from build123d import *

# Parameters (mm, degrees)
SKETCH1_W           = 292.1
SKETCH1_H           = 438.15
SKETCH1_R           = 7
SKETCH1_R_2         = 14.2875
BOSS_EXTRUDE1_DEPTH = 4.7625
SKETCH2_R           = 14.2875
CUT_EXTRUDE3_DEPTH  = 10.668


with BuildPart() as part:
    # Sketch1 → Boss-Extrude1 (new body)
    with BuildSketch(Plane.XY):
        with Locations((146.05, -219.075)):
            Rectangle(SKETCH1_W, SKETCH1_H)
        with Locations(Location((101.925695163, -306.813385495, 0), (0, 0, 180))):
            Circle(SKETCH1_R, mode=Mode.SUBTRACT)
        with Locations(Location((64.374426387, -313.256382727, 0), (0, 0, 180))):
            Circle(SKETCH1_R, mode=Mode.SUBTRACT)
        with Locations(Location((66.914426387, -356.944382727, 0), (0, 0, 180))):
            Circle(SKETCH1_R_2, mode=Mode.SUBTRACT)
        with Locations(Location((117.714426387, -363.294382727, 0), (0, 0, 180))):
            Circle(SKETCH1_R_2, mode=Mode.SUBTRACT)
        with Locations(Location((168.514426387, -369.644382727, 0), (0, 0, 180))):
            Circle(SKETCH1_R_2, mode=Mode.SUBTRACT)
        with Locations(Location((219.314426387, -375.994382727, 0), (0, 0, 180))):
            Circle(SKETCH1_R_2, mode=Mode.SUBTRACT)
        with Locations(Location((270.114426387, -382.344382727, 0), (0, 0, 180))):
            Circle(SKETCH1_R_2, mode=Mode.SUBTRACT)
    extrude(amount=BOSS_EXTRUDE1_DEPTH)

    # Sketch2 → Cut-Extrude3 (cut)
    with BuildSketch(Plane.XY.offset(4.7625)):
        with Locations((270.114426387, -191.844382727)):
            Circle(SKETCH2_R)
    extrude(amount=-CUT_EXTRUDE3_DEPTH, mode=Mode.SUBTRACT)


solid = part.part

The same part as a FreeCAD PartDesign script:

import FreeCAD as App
import Part
import Sketcher
from FreeCAD import Vector
Q = App.Units.Quantity

doc = App.newDocument("Part")
body = doc.addObject("PartDesign::Body", "Body")

# Sketch on XY plane
sketch1 = body.newObject("Sketcher::SketchObject", "Sketch")
sketch1.AttachmentSupport = (doc.getObject("XY_Plane"), [""])
sketch1.MapMode = "FlatFace"
sketch1.addGeometry(Part.LineSegment(Vector(0, 0, 0), Vector(0, -438.15, 0)), False)
sketch1.addGeometry(Part.LineSegment(Vector(0, -438.15, 0), Vector(292.1, -438.15, 0)), False)
sketch1.addGeometry(Part.LineSegment(Vector(292.1, -438.15, 0), Vector(292.1, 0, 0)), False)
sketch1.addGeometry(Part.LineSegment(Vector(292.1, 0, 0), Vector(0, 0, 0)), False)
sketch1.addGeometry(Part.Circle(Vector(66.914426, -356.944383, 0), Vector(0, 0, 1), 14.2875), False)
sketch1.addGeometry(Part.Circle(Vector(117.714426, -363.294383, 0), Vector(0, 0, 1), 14.2875), False)
sketch1.addGeometry(Part.Circle(Vector(168.514426, -369.644383, 0), Vector(0, 0, 1), 14.2875), False)
sketch1.addGeometry(Part.Circle(Vector(219.314426, -375.994383, 0), Vector(0, 0, 1), 14.2875), False)
sketch1.addGeometry(Part.Circle(Vector(270.114426, -382.344383, 0), Vector(0, 0, 1), 14.2875), False)
sketch1.addGeometry(Part.Circle(Vector(64.374426, -313.256383, 0), Vector(0, 0, 1), 7), False)
sketch1.addGeometry(Part.Circle(Vector(101.925695, -306.813385, 0), Vector(0, 0, 1), 7), False)
sketch1.addConstraint(Sketcher.Constraint("Coincident", 0, 2, 1, 1))
sketch1.addConstraint(Sketcher.Constraint("Coincident", 1, 2, 2, 1))
sketch1.addConstraint(Sketcher.Constraint("Coincident", 2, 2, 3, 1))
sketch1.addConstraint(Sketcher.Constraint("Coincident", 3, 2, 0, 1))
sketch1.addConstraint(Sketcher.Constraint("Vertical", 0))
sketch1.addConstraint(Sketcher.Constraint("Horizontal", 1))
sketch1.addConstraint(Sketcher.Constraint("Vertical", 2))
sketch1.addConstraint(Sketcher.Constraint("Horizontal", 3))
sketch1.addConstraint(Sketcher.Constraint("Coincident", 3, 2, -1, 1))
sketch1.addConstraint(Sketcher.Constraint("Equal", 4, 5))
sketch1.addConstraint(Sketcher.Constraint("Equal", 5, 6))
sketch1.addConstraint(Sketcher.Constraint("Equal", 6, 7))
sketch1.addConstraint(Sketcher.Constraint("Equal", 7, 8))
sketch1.addConstraint(Sketcher.Constraint("Equal", 9, 10))
sketch1.addConstraint(Sketcher.Constraint("Diameter", 4, Q("1.125 in")))
sketch1.addConstraint(Sketcher.Constraint("DistanceX", 1, 1, 1, 2, Q("11.5 in")))
sketch1.addConstraint(Sketcher.Constraint("DistanceX", 4, 3, 5, 3, Q("2 in")))
sketch1.addConstraint(Sketcher.Constraint("DistanceX", 5, 3, 6, 3, Q("2 in")))
sketch1.addConstraint(Sketcher.Constraint("DistanceX", 6, 3, 7, 3, Q("2 in")))
sketch1.addConstraint(Sketcher.Constraint("DistanceX", 7, 3, 8, 3, Q("2 in")))
sketch1.addConstraint(Sketcher.Constraint("DistanceY", 8, 3, 4, 3, Q("1 in")))
sketch1.addConstraint(Sketcher.Constraint("DistanceY", 0, 2, 0, 1, Q("17.25 in")))
sketch1.addConstraint(Sketcher.Constraint("DistanceY", 6, 3, 4, 3, Q("0.5 in")))
sketch1.addConstraint(Sketcher.Constraint("DistanceY", 7, 3, 5, 3, Q("0.5 in")))
sketch1.addConstraint(Sketcher.Constraint("DistanceX", 9, 3, 4, 3, Q("0.1 in")))
sketch1.addConstraint(Sketcher.Constraint("Diameter", 9, 14.0))
sketch1.addConstraint(Sketcher.Constraint("DistanceY", 5, 3, 4, 3, Q("0.25 in")))
sketch1.addConstraint(Sketcher.Constraint("DistanceY", 4, 3, 9, 3, Q("1.72 in")))
sketch1.addConstraint(Sketcher.Constraint("DistanceX", 9, 3, 10, 3, 37.551269))
sketch1.addConstraint(Sketcher.Constraint("DistanceX", -1, 1, 4, 3, 66.914426))
sketch1.addConstraint(Sketcher.Constraint("DistanceY", 4, 3, -1, 1, 356.944383))
sketch1.addConstraint(Sketcher.Constraint("DistanceY", 10, 3, -1, 1, 306.813385))
pad1 = body.newObject("PartDesign::Pad", "Pad")
pad1.Profile = sketch1
pad1.Length = Q("0.1875 in")

# Sketch on XY plane
sketch2 = body.newObject("Sketcher::SketchObject", "Sketch001")
sketch2.AttachmentSupport = (doc.getObject("XY_Plane"), [""])
sketch2.MapMode = "FlatFace"
sketch2.AttachmentOffset = App.Placement(Vector(0, 0, 0.1875 * 25.4), App.Rotation())
sketch2.addGeometry(Part.Circle(Vector(270.114426, -191.844383, 0), Vector(0, 0, 1), 14.2875), False)
sketch2.addConstraint(Sketcher.Constraint("Diameter", 0, Q("1.125 in")))
sketch2.addConstraint(Sketcher.Constraint("DistanceX", -1, 1, 0, 3, 270.114426))
sketch2.addConstraint(Sketcher.Constraint("DistanceY", 0, 3, -1, 1, 191.844383))
pocket1 = body.newObject("PartDesign::Pocket", "Pocket")
pocket1.Profile = sketch2
pocket1.Length = Q("0.42 in")

doc.recompute()
